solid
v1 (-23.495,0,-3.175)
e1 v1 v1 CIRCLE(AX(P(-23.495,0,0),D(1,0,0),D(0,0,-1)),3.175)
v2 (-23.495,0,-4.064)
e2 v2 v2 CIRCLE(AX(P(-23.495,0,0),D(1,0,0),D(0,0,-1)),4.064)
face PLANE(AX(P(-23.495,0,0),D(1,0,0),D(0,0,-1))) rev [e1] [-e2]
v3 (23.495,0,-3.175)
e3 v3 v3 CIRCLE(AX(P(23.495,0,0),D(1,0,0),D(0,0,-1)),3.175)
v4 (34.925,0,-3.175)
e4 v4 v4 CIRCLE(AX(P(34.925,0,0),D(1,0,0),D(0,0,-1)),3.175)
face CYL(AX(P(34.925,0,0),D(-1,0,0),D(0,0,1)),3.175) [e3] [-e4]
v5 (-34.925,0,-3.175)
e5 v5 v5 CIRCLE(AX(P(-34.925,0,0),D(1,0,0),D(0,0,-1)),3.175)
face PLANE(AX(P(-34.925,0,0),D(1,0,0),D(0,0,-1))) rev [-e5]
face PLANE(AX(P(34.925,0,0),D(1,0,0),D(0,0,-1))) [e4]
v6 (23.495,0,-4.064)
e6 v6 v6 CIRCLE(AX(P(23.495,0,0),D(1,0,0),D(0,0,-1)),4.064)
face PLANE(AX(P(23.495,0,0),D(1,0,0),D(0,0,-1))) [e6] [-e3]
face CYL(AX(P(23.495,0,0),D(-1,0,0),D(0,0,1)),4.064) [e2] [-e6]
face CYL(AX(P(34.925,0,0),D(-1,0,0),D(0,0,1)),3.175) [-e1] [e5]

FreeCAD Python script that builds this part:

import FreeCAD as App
import Part
import Sketcher
from FreeCAD import Vector
Q = App.Units.Quantity

doc = App.newDocument("Part")
params = doc.addObject("Spreadsheet::Sheet", "Params")
for row, (alias, value) in enumerate([
    ("sketch1_diameter", "0.25 in"),
    ("pad1_length", "2.75 in"),
    ("sketch2_diameter", "0.32 in"),
    ("pad2_length", "1.85 in"),
], start=1):
    params.set(f"A{row}", alias)
    params.set(f"B{row}", "=" + value)
    params.setAlias(f"B{row}", alias)

body = doc.addObject("PartDesign::Body", "Body")

# Sketch on YZ plane
sketch1 = body.newObject("Sketcher::SketchObject", "Sketch")
sketch1.AttachmentSupport = (doc.getObject("YZ_Plane"), [""])
sketch1.MapMode = "FlatFace"
sketch1.addGeometry(Part.Circle(Vector(0, 0, 0), Vector(0, 0, 1), 3.2), False)
sketch1.addConstraint(Sketcher.Constraint("Coincident", 0, 3, -1, 1))
sketch1.addConstraint(Sketcher.Constraint("Diameter", 0, Q("0.25 in")))
sketch1.setExpression("Constraints[1]", "Params.sketch1_diameter")
pad1 = body.newObject("PartDesign::Pad", "Pad")
pad1.Profile = sketch1
pad1.setExpression("Length", "Params.pad1_length")
pad1.Midplane = True

# Sketch on YZ plane
sketch2 = body.newObject("Sketcher::SketchObject", "Sketch001")
sketch2.AttachmentSupport = (doc.getObject("YZ_Plane"), [""])
sketch2.MapMode = "FlatFace"
sketch2.addGeometry(Part.Circle(Vector(0, 0, 0), Vector(0, 0, 1), 4.1), False)
sketch2.addConstraint(Sketcher.Constraint("Coincident", 0, 3, -1, 1))
sketch2.addConstraint(Sketcher.Constraint("Diameter", 0, Q("0.32 in")))
sketch2.setExpression("Constraints[1]", "Params.sketch2_diameter")
pad2 = body.newObject("PartDesign::Pad", "Pad001")
pad2.Profile = sketch2
pad2.setExpression("Length", "Params.pad2_length")
pad2.Midplane = True

doc.recompute()
